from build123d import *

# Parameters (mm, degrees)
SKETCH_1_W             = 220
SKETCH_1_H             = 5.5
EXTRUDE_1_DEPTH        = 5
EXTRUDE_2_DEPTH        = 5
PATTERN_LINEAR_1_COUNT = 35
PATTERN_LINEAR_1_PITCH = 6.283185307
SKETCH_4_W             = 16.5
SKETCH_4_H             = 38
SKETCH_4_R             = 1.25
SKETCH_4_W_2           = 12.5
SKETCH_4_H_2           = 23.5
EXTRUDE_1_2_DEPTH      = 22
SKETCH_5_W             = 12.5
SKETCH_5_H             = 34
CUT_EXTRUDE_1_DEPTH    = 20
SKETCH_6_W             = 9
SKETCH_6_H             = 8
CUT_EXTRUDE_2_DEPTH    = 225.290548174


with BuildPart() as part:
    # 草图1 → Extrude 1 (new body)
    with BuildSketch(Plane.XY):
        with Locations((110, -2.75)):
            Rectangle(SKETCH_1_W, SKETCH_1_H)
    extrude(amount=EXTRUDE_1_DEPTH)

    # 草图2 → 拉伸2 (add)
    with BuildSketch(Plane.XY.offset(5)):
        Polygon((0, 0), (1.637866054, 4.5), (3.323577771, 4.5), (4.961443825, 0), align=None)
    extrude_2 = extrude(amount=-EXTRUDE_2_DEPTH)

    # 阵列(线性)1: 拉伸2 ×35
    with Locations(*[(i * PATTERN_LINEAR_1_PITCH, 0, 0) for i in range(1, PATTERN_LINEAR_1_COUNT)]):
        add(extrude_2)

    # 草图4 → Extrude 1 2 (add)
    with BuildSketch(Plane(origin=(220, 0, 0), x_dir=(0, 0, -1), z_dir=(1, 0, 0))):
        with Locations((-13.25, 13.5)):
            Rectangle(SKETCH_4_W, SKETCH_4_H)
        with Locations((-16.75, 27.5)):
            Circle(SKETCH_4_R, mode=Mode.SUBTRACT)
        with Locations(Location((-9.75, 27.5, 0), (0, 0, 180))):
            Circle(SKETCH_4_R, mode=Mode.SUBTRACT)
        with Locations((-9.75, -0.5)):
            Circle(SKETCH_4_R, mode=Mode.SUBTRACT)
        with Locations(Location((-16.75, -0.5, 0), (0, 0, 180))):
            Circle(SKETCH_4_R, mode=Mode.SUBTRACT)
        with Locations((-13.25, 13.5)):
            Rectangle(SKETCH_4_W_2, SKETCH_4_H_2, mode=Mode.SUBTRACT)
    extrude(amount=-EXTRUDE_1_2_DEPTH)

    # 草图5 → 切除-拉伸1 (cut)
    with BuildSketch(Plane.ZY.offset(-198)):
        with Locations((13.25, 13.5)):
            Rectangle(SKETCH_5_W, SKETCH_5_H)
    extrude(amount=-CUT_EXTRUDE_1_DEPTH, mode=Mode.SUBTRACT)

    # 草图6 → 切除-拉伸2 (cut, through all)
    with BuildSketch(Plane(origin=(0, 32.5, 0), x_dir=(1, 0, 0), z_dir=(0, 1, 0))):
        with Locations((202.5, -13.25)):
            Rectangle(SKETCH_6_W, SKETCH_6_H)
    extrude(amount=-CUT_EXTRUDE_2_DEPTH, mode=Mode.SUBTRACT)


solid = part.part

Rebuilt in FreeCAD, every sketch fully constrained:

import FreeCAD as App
import Part
import Sketcher
Q = App.Units.Quantity


def add_polygon(sketch, points):
    """Adds a closed chain of lines whose ends are joined by coincident constraints."""
    first, n = sketch.GeometryCount, len(points)
    for a, b in zip(points, points[1:] + points[:1]):
        sketch.addGeometry(Part.LineSegment(App.Vector(*a, 0), App.Vector(*b, 0)), False)
    for i in range(n):
        sketch.addConstraint(Sketcher.Constraint("Coincident", first + i, 2, first + (i + 1) % n, 1))

doc = App.newDocument("Part")
params = doc.addObject("Spreadsheet::Sheet", "Params")
for row, (alias, value) in enumerate([
    ("sketch1_width", "220 mm"),
    ("sketch1_height", "5.5 mm"),
    ("pad1_length", "5 mm"),
    ("pad2_length", "5 mm"),
    ("linearpattern_pitch", "6.283185 mm"),
    ("sketch3_diameter", "2.5 mm"),
    ("sketch3_width", "38 mm"),
    ("sketch3_width2", "23.5 mm"),
    ("sketch3_height", "16.5 mm"),
    ("sketch3_height2", "12.5 mm"),
    ("pad3_length", "22 mm"),
    ("sketch4_width", "34 mm"),
    ("sketch4_height", "12.5 mm"),
    ("pocket1_length", "20 mm"),
    ("sketch5_width", "9 mm"),
    ("sketch5_height", "8 mm"),
], start=1):
    params.set(f"A{row}", alias)
    params.set(f"B{row}", "=" + value)
    params.setAlias(f"B{row}", alias)

body = doc.addObject("PartDesign::Body", "Body")

sketch1 = doc.addObject("Sketcher::SketchObject", "Sketch")
body.addObject(sketch1)
sketch1.AttachmentSupport = (doc.XY_Plane, [""])
sketch1.MapMode = "FlatFace"
add_polygon(sketch1, [(0, 0), (0, -6), (220, -6), (220, 0)])
sketch1.addConstraint([
    Sketcher.Constraint("Vertical", 0),
    Sketcher.Constraint("Horizontal", 1),
    Sketcher.Constraint("Vertical", 2),
    Sketcher.Constraint("Horizontal", 3),
    Sketcher.Constraint("Coincident", 3, 2, -1, 1),
    Sketcher.Constraint("DistanceX", 1, 1, 1, 2, 220.0),
    Sketcher.Constraint("DistanceY", 0, 2, 0, 1, 5.5),
])
sketch1.setExpression("Constraints[9]", "Params.sketch1_width")
sketch1.setExpression("Constraints[10]", "Params.sketch1_height")
pad1 = doc.addObject("PartDesign::Pad", "Pad")
body.addObject(pad1)
pad1.Profile = sketch1
pad1.setExpression("Length", "Params.pad1_length")

sketch2 = doc.addObject("Sketcher::SketchObject", "Sketch001")
body.addObject(sketch2)
sketch2.AttachmentSupport = (doc.XY_Plane, [""])
sketch2.MapMode = "FlatFace"
sketch2.AttachmentOffset = App.Placement(App.Vector(0, 0, 5), App.Rotation())
add_polygon(sketch2, [(1.6, 4.5), (0, 0), (5, 0), (3.3, 4.5)])
sketch2.addConstraint([
    Sketcher.Constraint("Horizontal", 1),
    Sketcher.Constraint("Horizontal", 3),
    Sketcher.Constraint("Coincident", 0, 2, -1, 1),
    Sketcher.Constraint("Equal", 0, 2),
    Sketcher.Constraint("Angle", 0, Q("-110 deg")),
    Sketcher.Constraint("DistanceY", -1, 1, 2, 2, 4.5),
    Sketcher.Constraint("DistanceX", 3, 2, 3, 1, 1.685712),
])
pad2 = doc.addObject("PartDesign::Pad", "Pad001")
body.addObject(pad2)
pad2.Profile = sketch2
pad2.setExpression("Length", "Params.pad2_length")
pad2.Reversed = True
doc.recompute()

linearpattern = doc.addObject("PartDesign::LinearPattern", "LinearPattern")
body.addObject(linearpattern)
linearpattern.Originals = [pad2]
linearpattern.Direction = (doc.X_Axis, [""])
linearpattern.Mode = "offset"
linearpattern.setExpression("Offset", "Params.linearpattern_pitch")
linearpattern.Occurrences = 35
body.Tip = linearpattern

sketch3 = doc.addObject("Sketcher::SketchObject", "Sketch002")
body.addObject(sketch3)
sketch3.AttachmentSupport = (doc.YZ_Plane, [""])
sketch3.MapMode = "FlatFace"
sketch3.AttachmentOffset = App.Placement(App.Vector(0, 0, 220), App.Rotation())
add_polygon(sketch3, [(32.5, 21.5), (-5.5, 21.5), (-5.5, 5), (32.5, 5)])
sketch3.addGeometry(Part.Circle(App.Vector(-0.5, 16.8, 0), App.Vector(0, 0, 1), 1.2), False)
sketch3.addGeometry(Part.Circle(App.Vector(-0.5, 9.8, 0), App.Vector(0, 0, 1), 1.2), False)
sketch3.addGeometry(Part.Circle(App.Vector(27.5, 16.8, 0), App.Vector(0, 0, 1), 1.2), False)
add_polygon(sketch3, [(1.8, 7), (1.8, 19.5), (25.2, 19.5), (25.2, 7)])
sketch3.addGeometry(Part.Circle(App.Vector(27.5, 9.8, 0), App.Vector(0, 0, 1), 1.2), False)
sketch3.addConstraint([
    Sketcher.Constraint("Horizontal", 0),
    Sketcher.Constraint("Vertical", 1),
    Sketcher.Constraint("Horizontal", 2),
    Sketcher.Constraint("Vertical", 3),
    Sketcher.Constraint("Vertical", 7),
    Sketcher.Constraint("Horizontal", 8),
    Sketcher.Constraint("Vertical", 9),
    Sketcher.Constraint("Horizontal", 10),
    Sketcher.Constraint("Equal", 4, 5),
    Sketcher.Constraint("Equal", 5, 6),
    Sketcher.Constraint("Equal", 6, 11),
    Sketcher.Constraint("Horizontal", 4, 3, 6, 3),
    Sketcher.Constraint("Horizontal", 5, 3, 11, 3),
    Sketcher.Constraint("Vertical", 4, 3, 5, 3),
    Sketcher.Constraint("Vertical", 6, 3, 11, 3),
    Sketcher.Constraint("Diameter", 4, 2.5),
    Sketcher.Constraint("DistanceX", 0, 2, 0, 1, 38.0),
    Sketcher.Constraint("DistanceX", 8, 1, 8, 2, 23.5),
    Sketcher.Constraint("DistanceY", 1, 2, 1, 1, 16.5),
    Sketcher.Constraint("DistanceY", 7, 1, 7, 2, 12.5),
    Sketcher.Constraint("DistanceY", -1, 1, 1, 2, 5.0),
    Sketcher.Constraint("DistanceY", -1, 1, 9, 2, 7.0),
    Sketcher.Constraint("DistanceY", 5, 3, 4, 3, 7.0),
    Sketcher.Constraint("DistanceX", 4, 3, 6, 3, 28.0),
    Sketcher.Constraint("DistanceX", 0, 2, 4, 3, 5.0),
    Sketcher.Constraint("DistanceX", 4, 3, -1, 1, 0.5),
    Sketcher.Constraint("DistanceY", -1, 1, 4, 3, 16.75),
    Sketcher.Constraint("DistanceX", -1, 1, 7, 2, 1.75),
])
sketch3.setExpression("Constraints[23]", "Params.sketch3_diameter")
sketch3.setExpression("Constraints[24]", "Params.sketch3_width")
sketch3.setExpression("Constraints[25]", "Params.sketch3_width2")
sketch3.setExpression("Constraints[26]", "Params.sketch3_height")
sketch3.setExpression("Constraints[27]", "Params.sketch3_height2")
pad3 = doc.addObject("PartDesign::Pad", "Pad002")
body.addObject(pad3)
pad3.Profile = sketch3
pad3.setExpression("Length", "Params.pad3_length")
pad3.Reversed = True

sketch4 = doc.addObject("Sketcher::SketchObject", "Sketch003")
body.addObject(sketch4)
sketch4.AttachmentSupport = (doc.YZ_Plane, [""])
sketch4.MapMode = "FlatFace"
sketch4.AttachmentOffset = App.Placement(App.Vector(0, 0, 198), App.Rotation())
add_polygon(sketch4, [(30, 7), (-4, 7), (-4, 20), (30, 20)])
sketch4.addConstraint([
    Sketcher.Constraint("Horizontal", 0),
    Sketcher.Constraint("Vertical", 1),
    Sketcher.Constraint("Horizontal", 2),
    Sketcher.Constraint("Vertical", 3),
    Sketcher.Constraint("DistanceX", 0, 2, 0, 1, 34.0),
    Sketcher.Constraint("DistanceY", 1, 1, 1, 2, 12.5),
    Sketcher.Constraint("DistanceY", -1, 1, 0, 2, 7.0),
    Sketcher.Constraint("DistanceX", 0, 2, -1, 1, 3.5),
])
sketch4.setExpression("Constraints[8]", "Params.sketch4_width")
sketch4.setExpression("Constraints[9]", "Params.sketch4_height")
pocket1 = doc.addObject("PartDesign::Pocket", "Pocket")
body.addObject(pocket1)
pocket1.Profile = sketch4
pocket1.setExpression("Length", "Params.pocket1_length")
pocket1.Reversed = True

sketch5 = doc.addObject("Sketcher::SketchObject", "Sketch004")
body.addObject(sketch5)
sketch5.AttachmentSupport = (doc.XZ_Plane, [""])
sketch5.MapMode = "FlatFace"
sketch5.AttachmentOffset = App.Placement(App.Vector(0, 0, -32.5), App.Rotation())
add_polygon(sketch5, [(198, 9), (198, 17), (207, 17), (207, 9)])
sketch5.addConstraint([
    Sketcher.Constraint("Vertical", 0),
    Sketcher.Constraint("Horizontal", 1),
    Sketcher.Constraint("Vertical", 2),
    Sketcher.Constraint("Horizontal", 3),
    Sketcher.Constraint("DistanceX", 1, 1, 1, 2, 9.0),
    Sketcher.Constraint("DistanceY", 0, 1, 0, 2, 8.0),
    Sketcher.Constraint("DistanceX", -1, 1, 0, 2, 198.0),
    Sketcher.Constraint("DistanceY", -1, 1, 0, 2, 17.25),
])
sketch5.setExpression("Constraints[8]", "Params.sketch5_width")
sketch5.setExpression("Constraints[9]", "Params.sketch5_height")
pocket2 = doc.addObject("PartDesign::Pocket", "Pocket001")
body.addObject(pocket2)
pocket2.Profile = sketch5
pocket2.Type = "ThroughAll"
pocket2.Reversed = True

doc.recompute()
